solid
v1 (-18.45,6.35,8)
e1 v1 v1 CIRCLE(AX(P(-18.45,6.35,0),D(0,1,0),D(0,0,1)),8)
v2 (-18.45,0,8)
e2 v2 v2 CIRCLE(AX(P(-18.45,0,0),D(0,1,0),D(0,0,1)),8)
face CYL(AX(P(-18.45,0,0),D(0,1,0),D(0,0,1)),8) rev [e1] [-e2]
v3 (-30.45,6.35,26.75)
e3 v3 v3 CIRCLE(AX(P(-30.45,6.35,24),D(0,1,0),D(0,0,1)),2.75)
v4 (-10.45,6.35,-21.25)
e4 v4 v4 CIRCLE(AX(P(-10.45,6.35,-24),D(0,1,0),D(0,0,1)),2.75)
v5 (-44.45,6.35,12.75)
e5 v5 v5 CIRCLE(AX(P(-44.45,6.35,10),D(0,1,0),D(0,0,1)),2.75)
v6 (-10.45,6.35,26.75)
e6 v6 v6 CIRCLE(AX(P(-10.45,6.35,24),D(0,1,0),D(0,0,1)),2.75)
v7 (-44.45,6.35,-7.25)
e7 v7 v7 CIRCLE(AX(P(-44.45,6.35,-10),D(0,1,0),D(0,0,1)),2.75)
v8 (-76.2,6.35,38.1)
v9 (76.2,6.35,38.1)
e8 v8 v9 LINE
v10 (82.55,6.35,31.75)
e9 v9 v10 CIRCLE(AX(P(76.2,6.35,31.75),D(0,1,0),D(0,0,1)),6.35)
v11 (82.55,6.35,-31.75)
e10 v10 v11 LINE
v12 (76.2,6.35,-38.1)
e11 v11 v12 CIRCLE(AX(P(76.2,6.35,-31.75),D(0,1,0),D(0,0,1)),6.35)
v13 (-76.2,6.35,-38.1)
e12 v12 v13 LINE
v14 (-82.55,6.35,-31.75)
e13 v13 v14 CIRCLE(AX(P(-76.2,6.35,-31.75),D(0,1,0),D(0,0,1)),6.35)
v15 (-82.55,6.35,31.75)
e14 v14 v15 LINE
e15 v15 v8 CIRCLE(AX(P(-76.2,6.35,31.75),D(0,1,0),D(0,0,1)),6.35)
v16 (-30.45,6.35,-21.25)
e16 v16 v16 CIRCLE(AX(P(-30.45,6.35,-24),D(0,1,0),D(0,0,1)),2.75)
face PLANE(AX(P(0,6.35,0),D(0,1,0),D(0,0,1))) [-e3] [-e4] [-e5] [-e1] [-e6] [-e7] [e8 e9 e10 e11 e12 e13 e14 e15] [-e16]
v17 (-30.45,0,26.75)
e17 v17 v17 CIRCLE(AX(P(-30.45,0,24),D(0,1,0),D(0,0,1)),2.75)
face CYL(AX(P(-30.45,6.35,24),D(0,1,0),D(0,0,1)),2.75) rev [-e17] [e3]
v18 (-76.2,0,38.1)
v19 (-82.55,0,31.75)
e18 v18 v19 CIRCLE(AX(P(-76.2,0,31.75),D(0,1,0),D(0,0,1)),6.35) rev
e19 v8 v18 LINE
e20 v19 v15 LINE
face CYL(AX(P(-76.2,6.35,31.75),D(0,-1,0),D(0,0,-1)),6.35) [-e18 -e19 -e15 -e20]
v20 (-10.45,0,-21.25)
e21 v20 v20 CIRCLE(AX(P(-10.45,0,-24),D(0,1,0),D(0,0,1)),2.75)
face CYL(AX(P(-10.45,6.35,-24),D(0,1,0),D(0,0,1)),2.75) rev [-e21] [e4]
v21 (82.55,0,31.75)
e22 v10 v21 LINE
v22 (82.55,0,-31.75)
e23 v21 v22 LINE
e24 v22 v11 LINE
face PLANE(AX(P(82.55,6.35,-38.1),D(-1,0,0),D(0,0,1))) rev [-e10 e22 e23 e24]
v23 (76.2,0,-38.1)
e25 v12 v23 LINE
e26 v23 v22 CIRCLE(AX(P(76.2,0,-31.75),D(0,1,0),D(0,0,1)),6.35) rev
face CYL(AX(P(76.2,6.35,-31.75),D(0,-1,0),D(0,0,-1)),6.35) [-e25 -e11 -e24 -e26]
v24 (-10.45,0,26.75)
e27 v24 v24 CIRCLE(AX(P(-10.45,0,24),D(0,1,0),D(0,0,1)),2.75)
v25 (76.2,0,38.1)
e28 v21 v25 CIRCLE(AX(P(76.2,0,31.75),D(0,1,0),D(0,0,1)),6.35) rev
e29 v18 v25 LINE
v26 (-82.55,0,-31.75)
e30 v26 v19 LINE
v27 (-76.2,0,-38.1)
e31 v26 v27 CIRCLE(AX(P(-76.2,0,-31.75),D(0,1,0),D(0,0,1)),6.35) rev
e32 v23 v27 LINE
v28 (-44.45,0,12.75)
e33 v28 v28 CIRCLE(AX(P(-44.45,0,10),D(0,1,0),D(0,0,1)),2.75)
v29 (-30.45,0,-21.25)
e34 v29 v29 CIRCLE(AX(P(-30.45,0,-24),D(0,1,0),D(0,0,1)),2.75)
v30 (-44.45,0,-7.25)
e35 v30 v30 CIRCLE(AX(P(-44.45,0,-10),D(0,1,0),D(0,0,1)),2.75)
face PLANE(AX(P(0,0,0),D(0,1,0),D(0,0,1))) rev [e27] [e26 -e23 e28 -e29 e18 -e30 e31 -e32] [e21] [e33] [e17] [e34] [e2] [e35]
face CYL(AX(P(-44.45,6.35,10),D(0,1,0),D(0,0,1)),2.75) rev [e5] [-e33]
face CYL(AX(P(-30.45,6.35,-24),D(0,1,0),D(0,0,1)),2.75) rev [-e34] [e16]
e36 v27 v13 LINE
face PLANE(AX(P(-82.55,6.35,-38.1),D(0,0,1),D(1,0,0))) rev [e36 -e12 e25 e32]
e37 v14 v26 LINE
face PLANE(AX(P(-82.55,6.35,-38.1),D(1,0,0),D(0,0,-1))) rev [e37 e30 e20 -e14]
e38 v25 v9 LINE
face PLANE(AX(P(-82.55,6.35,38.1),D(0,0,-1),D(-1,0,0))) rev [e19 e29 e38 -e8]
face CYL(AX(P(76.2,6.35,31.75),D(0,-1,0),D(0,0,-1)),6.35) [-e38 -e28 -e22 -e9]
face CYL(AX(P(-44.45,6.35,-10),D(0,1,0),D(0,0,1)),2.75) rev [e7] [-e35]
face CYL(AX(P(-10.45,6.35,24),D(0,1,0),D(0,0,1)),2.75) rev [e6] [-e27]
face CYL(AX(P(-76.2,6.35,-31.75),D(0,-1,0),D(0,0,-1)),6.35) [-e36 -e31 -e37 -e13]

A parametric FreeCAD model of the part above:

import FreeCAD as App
import Part
import Sketcher

V = App.Vector
Q = App.Units.Quantity


def edges_at(feature, points):
    """Names of the edges that pass closest to the given points."""
    edges = feature.Shape.Edges
    near = lambda p: min(range(len(edges)), key=lambda i: edges[i].distToShape(Part.Vertex(*p))[0])
    return sorted({f"Edge{near(p) + 1}" for p in points})

doc = App.newDocument("Part")
body = doc.addObject("PartDesign::Body", "Body")

# Sketch on XZ plane
sketch1 = body.newObject("Sketcher::SketchObject", "Sketch")
sketch1.AttachmentSupport = (doc.getObject("XZ_Plane"), [""])
sketch1.MapMode = "FlatFace"
sketch1.addGeometry(Part.LineSegment(V(-83, -38, 0), V(-83, 38, 0)), False)
sketch1.addGeometry(Part.LineSegment(V(-83, 38, 0), V(83, 38, 0)), False)
sketch1.addGeometry(Part.LineSegment(V(83, 38, 0), V(83, -38, 0)), False)
sketch1.addGeometry(Part.LineSegment(V(83, -38, 0), V(-83, -38, 0)), False)
sketch1.addConstraint(Sketcher.Constraint("Coincident", 0, 2, 1, 1))
sketch1.addConstraint(Sketcher.Constraint("Coincident", 1, 2, 2, 1))
sketch1.addConstraint(Sketcher.Constraint("Coincident", 2, 2, 3, 1))
sketch1.addConstraint(Sketcher.Constraint("Coincident", 3, 2, 0, 1))
sketch1.addConstraint(Sketcher.Constraint("Vertical", 0))
sketch1.addConstraint(Sketcher.Constraint("Horizontal", 1))
sketch1.addConstraint(Sketcher.Constraint("Vertical", 2))
sketch1.addConstraint(Sketcher.Constraint("Horizontal", 3))
sketch1.addConstraint(Sketcher.Constraint("Symmetric", 0, 2, 2, 2, -1, 1))
sketch1.addConstraint(Sketcher.Constraint("DistanceY", 0, 1, 0, 2, Q("3 in")))
sketch1.addConstraint(Sketcher.Constraint("DistanceX", 1, 1, 1, 2, Q("6.5 in")))
pad1 = body.newObject("PartDesign::Pad", "Pad")
pad1.Profile = sketch1
pad1.Length = Q("0.25 in")
pad1.Reversed = True

# Sketch on XZ plane
sketch2 = body.newObject("Sketcher::SketchObject", "Sketch001")
sketch2.AttachmentSupport = (doc.getObject("XZ_Plane"), [""])
sketch2.MapMode = "FlatFace"
sketch2.AttachmentOffset = App.Placement(V(0, 0, -0.25 * 25.4), App.Rotation())
sketch2.addGeometry(Part.Circle(V(-44.5, -10, 0), V(0, 0, 1), 2.8), False)
sketch2.addGeometry(Part.Circle(V(-44.5, 10, 0), V(0, 0, 1), 2.8), False)
sketch2.addGeometry(Part.Circle(V(-18.4, 0, 0), V(0, 0, 1), 2.8), False)
sketch2.addGeometry(Part.Circle(V(-10.4, -24, 0), V(0, 0, 1), 2.8), False)
sketch2.addGeometry(Part.Circle(V(-10.4, 24, 0), V(0, 0, 1), 2.8), False)
sketch2.addGeometry(Part.Circle(V(-30.4, -24, 0), V(0, 0, 1), 2.8), False)
sketch2.addGeometry(Part.Circle(V(-30.4, 24, 0), V(0, 0, 1), 2.8), False)
sketch2.addConstraint(Sketcher.Constraint("Equal", 0, 1))
sketch2.addConstraint(Sketcher.Constraint("Equal", 1, 2))
sketch2.addConstraint(Sketcher.Constraint("Equal", 2, 3))
sketch2.addConstraint(Sketcher.Constraint("Equal", 3, 4))
sketch2.addConstraint(Sketcher.Constraint("Equal", 4, 5))
sketch2.addConstraint(Sketcher.Constraint("Equal", 5, 6))
sketch2.addConstraint(Sketcher.Constraint("Symmetric", 0, 3, 1, 3, -1))
sketch2.addConstraint(Sketcher.Constraint("Symmetric", 3, 3, 4, 3, -1))
sketch2.addConstraint(Sketcher.Constraint("Symmetric", 5, 3, 6, 3, -1))
sketch2.addConstraint(Sketcher.Constraint("PointOnObject", 2, 3, -1))
sketch2.addConstraint(Sketcher.Constraint("Horizontal", 3, 3, 5, 3))
sketch2.addConstraint(Sketcher.Constraint("Diameter", 0, 5.5))
sketch2.addConstraint(Sketcher.Constraint("DistanceX", 0, 3, -1, 1, Q("1.75 in")))
sketch2.addConstraint(Sketcher.Constraint("DistanceY", 0, 3, -1, 1, 10.0))
sketch2.addConstraint(Sketcher.Constraint("DistanceX", 2, 3, -1, 1, 18.45))
sketch2.addConstraint(Sketcher.Constraint("DistanceX", 3, 3, -1, 1, 10.45))
sketch2.addConstraint(Sketcher.Constraint("DistanceY", 3, 3, -1, 1, 24.0))
sketch2.addConstraint(Sketcher.Constraint("DistanceX", 5, 3, -1, 1, 30.45))
doc.recompute()
hole = body.newObject("PartDesign::Hole", "Hole")
hole.Profile = sketch2
hole.ThreadType = "None"
hole.Diameter = 5.5
hole.DepthType = "Dimension"
hole.Depth = Q("0.5 in")
hole.DrillPoint = "Angled"
hole.DrillPointAngle = 118
hole.Reversed = True

# Sketch on XZ plane
sketch3 = body.newObject("Sketcher::SketchObject", "Sketch002")
sketch3.AttachmentSupport = (doc.getObject("XZ_Plane"), [""])
sketch3.MapMode = "FlatFace"
sketch3.AttachmentOffset = App.Placement(V(0, 0, -0.25 * 25.4), App.Rotation())
sketch3.addGeometry(Part.Circle(V(-18, 0, 0), V(0, 0, 1), 8), False)
sketch3.addConstraint(Sketcher.Constraint("PointOnObject", 0, 3, -1))
sketch3.addConstraint(Sketcher.Constraint("Diameter", 0, 16.0))
sketch3.addConstraint(Sketcher.Constraint("DistanceX", 0, 3, -1, 1, 18.45))
pocket1 = body.newObject("PartDesign::Pocket", "Pocket")
pocket1.Profile = sketch3
pocket1.Length = Q("0.25 in")
pocket1.Reversed = True
doc.recompute()

fillet = body.newObject("PartDesign::Fillet", "Fillet")
fillet.Base = (pocket1, edges_at(pocket1, [
    (82.55, 3.175, 38.1),
    (-82.55, 3.175, 38.1),
    (-82.55, 3.175, -38.1),
    (82.55, 3.175, -38.1),
]))
fillet.Radius = Q("0.25 in")

doc.recompute()
